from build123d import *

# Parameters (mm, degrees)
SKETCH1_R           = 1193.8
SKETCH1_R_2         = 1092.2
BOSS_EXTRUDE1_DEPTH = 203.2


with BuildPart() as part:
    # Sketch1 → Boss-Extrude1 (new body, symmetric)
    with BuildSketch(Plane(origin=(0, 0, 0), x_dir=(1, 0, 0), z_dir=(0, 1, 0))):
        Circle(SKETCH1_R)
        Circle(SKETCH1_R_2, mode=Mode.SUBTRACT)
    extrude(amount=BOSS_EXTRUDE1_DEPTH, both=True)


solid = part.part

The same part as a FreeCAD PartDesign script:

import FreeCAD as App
import Part
import Sketcher
Q = App.Units.Quantity

doc = App.newDocument("Part")
body = doc.addObject("PartDesign::Body", "Body")

# Sketch on XZ plane
sketch1 = doc.addObject("Sketcher::SketchObject", "Sketch")
body.addObject(sketch1)
sketch1.AttachmentSupport = (doc.XZ_Plane, [""])
sketch1.MapMode = "FlatFace"
sketch1.addGeometry([
    Part.Circle(App.Vector(0, 0, 0), App.Vector(0, 0, 1), 1194),
    Part.Circle(App.Vector(0, 0, 0), App.Vector(0, 0, 1), 1092),
], False)
sketch1.addConstraint([
    Sketcher.Constraint("Coincident", 0, 3, -1, 1),
    Sketcher.Constraint("Coincident", 1, 3, -1, 1),
    Sketcher.Constraint("Diameter", 0, Q("94 in")),
    Sketcher.Constraint("Diameter", 1, Q("86 in")),
])
pad1 = doc.addObject("PartDesign::Pad", "Pad")
body.addObject(pad1)
pad1.Profile = sketch1
pad1.Length = Q("16 in")
pad1.Midplane = True

doc.recompute()
